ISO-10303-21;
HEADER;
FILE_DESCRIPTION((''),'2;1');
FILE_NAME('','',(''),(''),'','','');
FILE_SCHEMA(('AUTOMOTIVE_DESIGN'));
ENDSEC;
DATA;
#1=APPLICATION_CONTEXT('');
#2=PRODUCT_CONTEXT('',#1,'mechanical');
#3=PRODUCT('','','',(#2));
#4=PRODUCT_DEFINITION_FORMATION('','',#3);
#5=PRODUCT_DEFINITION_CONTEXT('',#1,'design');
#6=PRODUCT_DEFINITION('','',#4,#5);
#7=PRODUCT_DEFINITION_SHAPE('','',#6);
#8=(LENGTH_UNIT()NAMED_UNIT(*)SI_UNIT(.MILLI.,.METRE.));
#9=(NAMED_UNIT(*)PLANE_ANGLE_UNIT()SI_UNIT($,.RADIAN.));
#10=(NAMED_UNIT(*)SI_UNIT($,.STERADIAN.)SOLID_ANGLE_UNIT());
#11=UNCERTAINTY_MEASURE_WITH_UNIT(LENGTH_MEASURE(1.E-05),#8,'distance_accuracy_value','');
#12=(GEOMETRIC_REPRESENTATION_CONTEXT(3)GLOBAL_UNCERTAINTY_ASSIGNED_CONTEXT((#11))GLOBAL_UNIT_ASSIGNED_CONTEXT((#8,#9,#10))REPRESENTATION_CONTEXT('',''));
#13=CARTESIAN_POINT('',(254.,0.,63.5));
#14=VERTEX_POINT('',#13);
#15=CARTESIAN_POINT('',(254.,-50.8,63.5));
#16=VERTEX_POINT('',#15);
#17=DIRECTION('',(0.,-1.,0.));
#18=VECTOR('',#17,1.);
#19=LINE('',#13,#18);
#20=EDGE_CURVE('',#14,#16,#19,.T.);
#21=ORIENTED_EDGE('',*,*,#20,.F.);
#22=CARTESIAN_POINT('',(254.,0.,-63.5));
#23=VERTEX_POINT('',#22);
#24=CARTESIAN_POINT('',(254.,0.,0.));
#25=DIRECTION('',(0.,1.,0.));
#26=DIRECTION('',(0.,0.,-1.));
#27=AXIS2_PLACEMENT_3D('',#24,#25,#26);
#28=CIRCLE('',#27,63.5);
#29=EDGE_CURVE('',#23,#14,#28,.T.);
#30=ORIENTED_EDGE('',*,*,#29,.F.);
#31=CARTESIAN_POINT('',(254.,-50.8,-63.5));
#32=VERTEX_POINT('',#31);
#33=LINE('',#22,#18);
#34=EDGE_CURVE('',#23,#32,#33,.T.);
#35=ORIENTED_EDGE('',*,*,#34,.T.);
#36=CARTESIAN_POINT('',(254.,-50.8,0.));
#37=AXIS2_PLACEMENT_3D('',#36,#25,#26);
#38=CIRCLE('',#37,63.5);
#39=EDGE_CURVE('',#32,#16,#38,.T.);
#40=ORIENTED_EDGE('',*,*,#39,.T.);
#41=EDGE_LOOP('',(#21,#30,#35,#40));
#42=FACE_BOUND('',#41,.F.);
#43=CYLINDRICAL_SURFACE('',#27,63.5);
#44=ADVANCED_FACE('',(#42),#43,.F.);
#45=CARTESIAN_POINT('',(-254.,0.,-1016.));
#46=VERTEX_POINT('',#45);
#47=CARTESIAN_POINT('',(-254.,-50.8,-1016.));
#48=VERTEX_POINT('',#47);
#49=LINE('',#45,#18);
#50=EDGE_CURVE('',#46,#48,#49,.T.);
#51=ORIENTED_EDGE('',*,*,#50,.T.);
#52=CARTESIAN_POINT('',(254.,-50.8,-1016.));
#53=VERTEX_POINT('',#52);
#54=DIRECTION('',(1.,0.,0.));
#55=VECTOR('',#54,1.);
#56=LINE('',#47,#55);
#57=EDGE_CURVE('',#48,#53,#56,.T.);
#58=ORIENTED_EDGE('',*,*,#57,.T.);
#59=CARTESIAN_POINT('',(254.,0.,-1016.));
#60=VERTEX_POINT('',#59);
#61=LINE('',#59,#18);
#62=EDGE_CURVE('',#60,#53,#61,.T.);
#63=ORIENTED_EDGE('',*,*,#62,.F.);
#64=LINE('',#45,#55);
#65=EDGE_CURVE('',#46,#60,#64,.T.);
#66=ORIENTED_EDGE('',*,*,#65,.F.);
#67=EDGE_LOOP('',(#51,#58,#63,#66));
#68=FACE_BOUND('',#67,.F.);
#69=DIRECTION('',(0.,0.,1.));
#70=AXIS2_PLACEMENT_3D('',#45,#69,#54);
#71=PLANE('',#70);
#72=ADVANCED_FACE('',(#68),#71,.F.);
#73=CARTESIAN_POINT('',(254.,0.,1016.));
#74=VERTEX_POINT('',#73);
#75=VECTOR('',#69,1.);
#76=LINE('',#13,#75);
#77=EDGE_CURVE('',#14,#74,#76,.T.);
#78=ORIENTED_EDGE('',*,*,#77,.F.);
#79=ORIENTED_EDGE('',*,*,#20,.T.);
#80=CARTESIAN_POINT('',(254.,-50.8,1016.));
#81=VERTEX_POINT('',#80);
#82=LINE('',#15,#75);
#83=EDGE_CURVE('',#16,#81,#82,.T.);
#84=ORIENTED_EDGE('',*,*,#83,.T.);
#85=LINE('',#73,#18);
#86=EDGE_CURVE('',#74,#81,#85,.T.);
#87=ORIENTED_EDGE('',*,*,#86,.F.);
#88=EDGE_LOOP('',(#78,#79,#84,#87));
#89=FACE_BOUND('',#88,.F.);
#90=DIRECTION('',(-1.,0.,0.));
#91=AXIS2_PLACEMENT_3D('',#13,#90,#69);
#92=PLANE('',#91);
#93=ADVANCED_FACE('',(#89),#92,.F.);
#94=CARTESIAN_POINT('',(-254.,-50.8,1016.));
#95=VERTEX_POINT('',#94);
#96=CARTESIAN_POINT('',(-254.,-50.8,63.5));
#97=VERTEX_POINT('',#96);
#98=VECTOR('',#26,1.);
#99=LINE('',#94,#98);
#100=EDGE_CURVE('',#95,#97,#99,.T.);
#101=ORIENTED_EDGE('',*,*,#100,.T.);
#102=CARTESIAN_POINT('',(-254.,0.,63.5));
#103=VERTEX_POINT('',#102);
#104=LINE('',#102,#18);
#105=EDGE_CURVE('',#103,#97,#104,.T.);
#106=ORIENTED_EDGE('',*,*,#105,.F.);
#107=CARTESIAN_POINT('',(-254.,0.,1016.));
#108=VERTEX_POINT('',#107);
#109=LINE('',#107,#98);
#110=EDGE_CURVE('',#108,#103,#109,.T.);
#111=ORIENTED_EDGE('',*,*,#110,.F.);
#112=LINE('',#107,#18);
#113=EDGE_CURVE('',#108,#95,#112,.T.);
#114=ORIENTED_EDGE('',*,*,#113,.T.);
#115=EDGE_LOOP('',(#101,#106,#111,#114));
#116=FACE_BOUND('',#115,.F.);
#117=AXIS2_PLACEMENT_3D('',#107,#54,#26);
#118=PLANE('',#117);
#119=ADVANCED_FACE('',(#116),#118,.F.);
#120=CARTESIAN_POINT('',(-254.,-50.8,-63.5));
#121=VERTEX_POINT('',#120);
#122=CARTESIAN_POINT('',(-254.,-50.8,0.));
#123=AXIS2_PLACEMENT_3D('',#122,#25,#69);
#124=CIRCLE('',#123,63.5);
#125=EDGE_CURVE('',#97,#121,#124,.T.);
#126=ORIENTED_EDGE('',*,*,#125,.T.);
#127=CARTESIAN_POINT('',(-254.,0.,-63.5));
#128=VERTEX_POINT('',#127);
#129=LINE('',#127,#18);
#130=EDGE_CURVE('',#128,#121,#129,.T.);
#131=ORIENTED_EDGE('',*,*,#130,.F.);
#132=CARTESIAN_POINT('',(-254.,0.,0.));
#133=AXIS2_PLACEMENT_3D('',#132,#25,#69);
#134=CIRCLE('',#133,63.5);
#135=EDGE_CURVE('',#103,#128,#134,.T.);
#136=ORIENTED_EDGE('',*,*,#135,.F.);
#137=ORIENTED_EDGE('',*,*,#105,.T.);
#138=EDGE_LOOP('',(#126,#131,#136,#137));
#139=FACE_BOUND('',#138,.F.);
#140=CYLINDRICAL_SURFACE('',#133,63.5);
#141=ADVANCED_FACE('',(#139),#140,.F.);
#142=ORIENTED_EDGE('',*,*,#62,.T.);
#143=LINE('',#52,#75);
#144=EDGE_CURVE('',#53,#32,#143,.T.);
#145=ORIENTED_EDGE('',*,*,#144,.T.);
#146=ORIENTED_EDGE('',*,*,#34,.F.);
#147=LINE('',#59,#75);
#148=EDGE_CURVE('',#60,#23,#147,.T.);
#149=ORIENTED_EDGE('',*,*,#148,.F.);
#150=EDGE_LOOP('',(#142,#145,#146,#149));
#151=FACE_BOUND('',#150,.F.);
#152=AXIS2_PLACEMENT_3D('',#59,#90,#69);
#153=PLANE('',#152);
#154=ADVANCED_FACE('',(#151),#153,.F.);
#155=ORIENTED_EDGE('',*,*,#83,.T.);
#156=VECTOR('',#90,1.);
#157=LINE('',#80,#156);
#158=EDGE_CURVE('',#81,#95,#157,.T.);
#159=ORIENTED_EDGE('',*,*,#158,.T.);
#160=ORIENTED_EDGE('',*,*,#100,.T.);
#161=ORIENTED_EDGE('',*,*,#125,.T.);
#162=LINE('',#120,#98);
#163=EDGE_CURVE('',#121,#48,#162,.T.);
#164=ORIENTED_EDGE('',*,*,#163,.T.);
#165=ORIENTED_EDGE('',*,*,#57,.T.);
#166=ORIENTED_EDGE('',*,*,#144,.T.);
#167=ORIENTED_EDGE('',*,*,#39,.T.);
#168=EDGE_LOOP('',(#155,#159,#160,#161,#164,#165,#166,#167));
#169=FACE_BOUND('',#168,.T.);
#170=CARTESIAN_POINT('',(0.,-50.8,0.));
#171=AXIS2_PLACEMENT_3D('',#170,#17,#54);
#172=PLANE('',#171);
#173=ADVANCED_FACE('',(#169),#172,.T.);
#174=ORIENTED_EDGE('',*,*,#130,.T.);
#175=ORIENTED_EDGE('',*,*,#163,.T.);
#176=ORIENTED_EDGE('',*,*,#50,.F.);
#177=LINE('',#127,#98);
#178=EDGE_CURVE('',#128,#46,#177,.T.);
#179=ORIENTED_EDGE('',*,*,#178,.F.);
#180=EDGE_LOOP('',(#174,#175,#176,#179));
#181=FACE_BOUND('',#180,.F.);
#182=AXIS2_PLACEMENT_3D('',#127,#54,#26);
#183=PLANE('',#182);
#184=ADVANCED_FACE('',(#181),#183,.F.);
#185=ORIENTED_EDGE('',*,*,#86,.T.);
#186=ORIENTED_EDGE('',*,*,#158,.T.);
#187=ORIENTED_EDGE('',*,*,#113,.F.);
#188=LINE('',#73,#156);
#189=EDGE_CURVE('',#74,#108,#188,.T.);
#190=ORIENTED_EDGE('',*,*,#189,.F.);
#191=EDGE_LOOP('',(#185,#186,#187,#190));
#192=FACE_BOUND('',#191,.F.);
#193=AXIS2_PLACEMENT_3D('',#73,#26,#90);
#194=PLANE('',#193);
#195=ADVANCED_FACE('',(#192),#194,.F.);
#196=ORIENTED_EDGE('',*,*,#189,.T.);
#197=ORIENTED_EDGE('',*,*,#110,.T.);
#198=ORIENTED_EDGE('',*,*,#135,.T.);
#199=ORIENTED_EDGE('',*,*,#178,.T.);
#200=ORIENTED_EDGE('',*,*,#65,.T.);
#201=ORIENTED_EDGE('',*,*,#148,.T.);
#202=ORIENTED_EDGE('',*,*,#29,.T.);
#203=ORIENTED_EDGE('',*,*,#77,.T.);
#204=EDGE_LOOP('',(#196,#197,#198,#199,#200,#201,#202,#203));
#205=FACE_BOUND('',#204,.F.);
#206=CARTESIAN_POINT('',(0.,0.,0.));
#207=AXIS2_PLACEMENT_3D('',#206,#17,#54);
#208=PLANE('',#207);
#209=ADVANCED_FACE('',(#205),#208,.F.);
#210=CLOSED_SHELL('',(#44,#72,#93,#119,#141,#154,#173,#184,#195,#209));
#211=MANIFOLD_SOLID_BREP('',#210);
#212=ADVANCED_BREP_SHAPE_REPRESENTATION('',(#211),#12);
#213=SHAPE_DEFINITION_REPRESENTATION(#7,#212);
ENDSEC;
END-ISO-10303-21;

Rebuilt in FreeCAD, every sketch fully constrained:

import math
import FreeCAD as App
import Part
import Sketcher

V = App.Vector
Q = App.Units.Quantity

doc = App.newDocument("Part")
params = doc.addObject("Spreadsheet::Sheet", "Params")
for row, (alias, value) in enumerate([
    ("sketch1_radius", "2.5 in"),
    ("sketch1_width", "20 in"),
    ("sketch1_height", "37.5 in"),
    ("pad1_length", "2 in"),
], start=1):
    params.set(f"A{row}", alias)
    params.set(f"B{row}", "=" + value)
    params.setAlias(f"B{row}", alias)

body = doc.addObject("PartDesign::Body", "Body")

sketch1 = body.newObject("Sketcher::SketchObject", "Sketch")
sketch1.AttachmentSupport = (doc.getObject("XZ_Plane"), [""])
sketch1.MapMode = "FlatFace"
sketch1.addGeometry(Part.LineSegment(V(254, 1016, 0), V(-254, 1016, 0)), False)
sketch1.addGeometry(Part.LineSegment(V(-254, 1016, 0), V(-254, 64, 0)), False)
sketch1.addGeometry(Part.ArcOfCircle(Part.Circle(V(-254, 0, 0), V(0, 0, 1), 64), math.radians(-90), math.radians(90)), False)
sketch1.addGeometry(Part.LineSegment(V(-254, -64, 0), V(-254, -1016, 0)), False)
sketch1.addGeometry(Part.LineSegment(V(-254, -1016, 0), V(254, -1016, 0)), False)
sketch1.addGeometry(Part.LineSegment(V(254, -1016, 0), V(254, -64, 0)), False)
sketch1.addGeometry(Part.ArcOfCircle(Part.Circle(V(254, 0, 0), V(0, 0, 1), 64), math.radians(90), math.radians(270)), False)
sketch1.addGeometry(Part.LineSegment(V(254, 64, 0), V(254, 1016, 0)), False)
sketch1.addConstraint(Sketcher.Constraint("Coincident", 0, 2, 1, 1))
sketch1.addConstraint(Sketcher.Constraint("Coincident", 1, 2, 2, 2))
sketch1.addConstraint(Sketcher.Constraint("Coincident", 2, 1, 3, 1))
sketch1.addConstraint(Sketcher.Constraint("Coincident", 3, 2, 4, 1))
sketch1.addConstraint(Sketcher.Constraint("Coincident", 4, 2, 5, 1))
sketch1.addConstraint(Sketcher.Constraint("Coincident", 5, 2, 6, 2))
sketch1.addConstraint(Sketcher.Constraint("Coincident", 6, 1, 7, 1))
sketch1.addConstraint(Sketcher.Constraint("Coincident", 7, 2, 0, 1))
sketch1.addConstraint(Sketcher.Constraint("Horizontal", 0))
sketch1.addConstraint(Sketcher.Constraint("Vertical", 1))
sketch1.addConstraint(Sketcher.Constraint("Vertical", 3))
sketch1.addConstraint(Sketcher.Constraint("Horizontal", 4))
sketch1.addConstraint(Sketcher.Constraint("Vertical", 5))
sketch1.addConstraint(Sketcher.Constraint("Vertical", 7))
sketch1.addConstraint(Sketcher.Constraint("Equal", 2, 6))
sketch1.addConstraint(Sketcher.Constraint("Symmetric", 2, 3, 6, 3, -1, 1))
sketch1.addConstraint(Sketcher.Constraint("Symmetric", 0, 2, 4, 2, -1, 1))
sketch1.addConstraint(Sketcher.Constraint("Symmetric", 2, 1, 5, 2, -2))
sketch1.addConstraint(Sketcher.Constraint("Vertical", 2, 3, 0, 2))
sketch1.addConstraint(Sketcher.Constraint("Vertical", 5, 2, 6, 1))
sketch1.addConstraint(Sketcher.Constraint("Radius", 2, Q("2.5 in")))
sketch1.addConstraint(Sketcher.Constraint("DistanceX", 0, 2, 0, 1, Q("20 in")))
sketch1.addConstraint(Sketcher.Constraint("DistanceY", 1, 2, 1, 1, Q("37.5 in")))
sketch1.setExpression("Constraints[20]", "Params.sketch1_radius")
sketch1.setExpression("Constraints[21]", "Params.sketch1_width")
sketch1.setExpression("Constraints[22]", "Params.sketch1_height")
pad1 = body.newObject("PartDesign::Pad", "Pad")
pad1.Profile = sketch1
pad1.setExpression("Length", "Params.pad1_length")

doc.recompute()
